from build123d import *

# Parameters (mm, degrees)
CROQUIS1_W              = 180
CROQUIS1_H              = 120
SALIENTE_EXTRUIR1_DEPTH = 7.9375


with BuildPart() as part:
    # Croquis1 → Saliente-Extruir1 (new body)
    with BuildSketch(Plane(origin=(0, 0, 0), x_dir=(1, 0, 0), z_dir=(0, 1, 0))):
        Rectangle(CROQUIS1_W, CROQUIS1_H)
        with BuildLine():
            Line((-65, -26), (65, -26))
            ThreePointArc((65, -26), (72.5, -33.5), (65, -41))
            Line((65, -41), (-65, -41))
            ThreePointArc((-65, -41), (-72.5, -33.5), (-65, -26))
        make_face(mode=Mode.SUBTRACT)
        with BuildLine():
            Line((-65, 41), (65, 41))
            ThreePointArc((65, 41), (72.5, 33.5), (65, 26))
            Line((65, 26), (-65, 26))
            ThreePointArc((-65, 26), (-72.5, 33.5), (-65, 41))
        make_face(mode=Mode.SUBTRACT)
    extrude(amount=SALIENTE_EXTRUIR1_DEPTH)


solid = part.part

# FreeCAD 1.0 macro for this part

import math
import FreeCAD as App
import Part
import Sketcher


def add_polygon(sketch, points):
    """Adds a closed chain of lines whose ends are joined by coincident constraints."""
    first, n = sketch.GeometryCount, len(points)
    for a, b in zip(points, points[1:] + points[:1]):
        sketch.addGeometry(Part.LineSegment(App.Vector(*a, 0), App.Vector(*b, 0)), False)
    for i in range(n):
        sketch.addConstraint(Sketcher.Constraint("Coincident", first + i, 2, first + (i + 1) % n, 1))

doc = App.newDocument("Part")
params = doc.addObject("Spreadsheet::Sheet", "Params")
for row, (alias, value) in enumerate([
    ("sketch1_radius", "7.5 mm"),
    ("sketch1_width", "180 mm"),
    ("sketch1_width2", "130 mm"),
    ("sketch1_height", "120 mm"),
    ("pad1_length", "7.9375 mm"),
], start=1):
    params.set(f"A{row}", alias)
    params.set(f"B{row}", "=" + value)
    params.setAlias(f"B{row}", alias)

body = doc.addObject("PartDesign::Body", "Body")

# Sketch on XZ plane
sketch1 = body.newObject("Sketcher::SketchObject", "Sketch")
sketch1.AttachmentSupport = (doc.getObject("XZ_Plane"), [""])
sketch1.MapMode = "FlatFace"
add_polygon(sketch1, [(-90, -60), (-90, 60), (90, 60), (90, -60)])  # lines 0-3
sketch1.addGeometry(Part.ArcOfCircle(Part.Circle(App.Vector(-65, 33.5, 0), App.Vector(0, 0, 1), 7.5), math.radians(90), math.radians(270)), False)  # 4
sketch1.addGeometry(Part.LineSegment(App.Vector(-65, 26, 0), App.Vector(65, 26, 0)), False)  # 5
sketch1.addGeometry(Part.ArcOfCircle(Part.Circle(App.Vector(65, 33.5, 0), App.Vector(0, 0, 1), 7.5), math.radians(-90), math.radians(90)), False)  # 6
sketch1.addGeometry(Part.LineSegment(App.Vector(65, 41, 0), App.Vector(-65, 41, 0)), False)  # 7
sketch1.addGeometry(Part.ArcOfCircle(Part.Circle(App.Vector(-65, -33.5, 0), App.Vector(0, 0, 1), 7.5), math.radians(90), math.radians(270)), False)  # 8
sketch1.addGeometry(Part.LineSegment(App.Vector(-65, -41, 0), App.Vector(65, -41, 0)), False)  # 9
sketch1.addGeometry(Part.ArcOfCircle(Part.Circle(App.Vector(65, -33.5, 0), App.Vector(0, 0, 1), 7.5), math.radians(-90), math.radians(90)), False)  # 10
sketch1.addGeometry(Part.LineSegment(App.Vector(65, -26, 0), App.Vector(-65, -26, 0)), False)  # 11
sketch1.addConstraint(Sketcher.Constraint("Tangent", 4, 2, 5, 1))
sketch1.addConstraint(Sketcher.Constraint("Tangent", 5, 2, 6, 1))
sketch1.addConstraint(Sketcher.Constraint("Tangent", 6, 2, 7, 1))
sketch1.addConstraint(Sketcher.Constraint("Tangent", 7, 2, 4, 1))
sketch1.addConstraint(Sketcher.Constraint("Tangent", 8, 2, 9, 1))
sketch1.addConstraint(Sketcher.Constraint("Tangent", 9, 2, 10, 1))
sketch1.addConstraint(Sketcher.Constraint("Tangent", 10, 2, 11, 1))
sketch1.addConstraint(Sketcher.Constraint("Tangent", 11, 2, 8, 1))
sketch1.addConstraint(Sketcher.Constraint("Vertical", 0))
sketch1.addConstraint(Sketcher.Constraint("Horizontal", 1))
sketch1.addConstraint(Sketcher.Constraint("Vertical", 2))
sketch1.addConstraint(Sketcher.Constraint("Horizontal", 3))
sketch1.addConstraint(Sketcher.Constraint("Horizontal", 5))
sketch1.addConstraint(Sketcher.Constraint("Horizontal", 7))
sketch1.addConstraint(Sketcher.Constraint("Horizontal", 9))
sketch1.addConstraint(Sketcher.Constraint("Horizontal", 11))
sketch1.addConstraint(Sketcher.Constraint("Equal", 6, 8))
sketch1.addConstraint(Sketcher.Constraint("Symmetric", 6, 3, 8, 3, -1, 1))
sketch1.addConstraint(Sketcher.Constraint("Symmetric", 0, 2, 2, 2, -1, 1))
sketch1.addConstraint(Sketcher.Constraint("Vertical", 4, 3, 8, 3))
sketch1.addConstraint(Sketcher.Constraint("Vertical", 6, 3, 10, 3))
sketch1.addConstraint(Sketcher.Constraint("Radius", 4, 7.5))
sketch1.addConstraint(Sketcher.Constraint("DistanceX", 1, 1, 1, 2, 180.0))
sketch1.addConstraint(Sketcher.Constraint("DistanceX", 5, 1, 5, 2, 130.0))
sketch1.addConstraint(Sketcher.Constraint("DistanceY", 0, 1, 0, 2, 120.0))
sketch1.addConstraint(Sketcher.Constraint("DistanceY", -1, 1, 4, 2, 26.0))
sketch1.setExpression("Constraints[25]", "Params.sketch1_radius")
sketch1.setExpression("Constraints[26]", "Params.sketch1_width")
sketch1.setExpression("Constraints[27]", "Params.sketch1_width2")
sketch1.setExpression("Constraints[28]", "Params.sketch1_height")
pad1 = body.newObject("PartDesign::Pad", "Pad")
pad1.Profile = sketch1
pad1.setExpression("Length", "Params.pad1_length")
pad1.Reversed = True

doc.recompute()
